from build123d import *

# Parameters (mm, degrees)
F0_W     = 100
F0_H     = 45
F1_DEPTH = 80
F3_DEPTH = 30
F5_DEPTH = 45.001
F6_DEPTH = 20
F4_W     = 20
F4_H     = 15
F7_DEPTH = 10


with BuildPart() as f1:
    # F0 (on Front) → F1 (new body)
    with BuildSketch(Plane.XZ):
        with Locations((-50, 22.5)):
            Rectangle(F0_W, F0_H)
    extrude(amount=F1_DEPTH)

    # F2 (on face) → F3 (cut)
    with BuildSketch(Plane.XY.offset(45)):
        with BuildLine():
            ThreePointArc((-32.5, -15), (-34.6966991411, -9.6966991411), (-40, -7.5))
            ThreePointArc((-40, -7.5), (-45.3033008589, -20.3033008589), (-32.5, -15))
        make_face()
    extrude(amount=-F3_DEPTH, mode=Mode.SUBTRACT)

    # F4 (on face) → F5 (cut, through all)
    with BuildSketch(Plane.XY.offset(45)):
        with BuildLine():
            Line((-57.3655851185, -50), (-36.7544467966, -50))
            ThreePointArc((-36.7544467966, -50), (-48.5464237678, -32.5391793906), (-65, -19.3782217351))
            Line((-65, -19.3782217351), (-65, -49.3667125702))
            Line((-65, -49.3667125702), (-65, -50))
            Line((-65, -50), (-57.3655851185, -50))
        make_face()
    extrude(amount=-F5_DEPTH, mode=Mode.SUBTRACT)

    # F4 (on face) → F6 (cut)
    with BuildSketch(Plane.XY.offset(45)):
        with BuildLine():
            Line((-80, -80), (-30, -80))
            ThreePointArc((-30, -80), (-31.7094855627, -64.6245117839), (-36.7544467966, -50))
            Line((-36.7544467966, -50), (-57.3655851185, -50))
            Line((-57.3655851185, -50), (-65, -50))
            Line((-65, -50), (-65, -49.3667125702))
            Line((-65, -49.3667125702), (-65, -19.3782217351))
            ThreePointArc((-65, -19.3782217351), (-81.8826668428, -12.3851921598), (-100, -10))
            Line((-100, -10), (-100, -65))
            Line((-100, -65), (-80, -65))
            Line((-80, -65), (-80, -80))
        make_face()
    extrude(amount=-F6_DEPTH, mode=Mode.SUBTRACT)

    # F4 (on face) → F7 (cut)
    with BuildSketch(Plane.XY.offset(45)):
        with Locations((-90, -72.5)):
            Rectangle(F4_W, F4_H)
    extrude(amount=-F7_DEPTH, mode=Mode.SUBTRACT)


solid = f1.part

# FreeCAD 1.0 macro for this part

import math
import FreeCAD as App
import Part
import Sketcher

V = App.Vector

doc = App.newDocument("Part")
body = doc.addObject("PartDesign::Body", "Body")

# Sketch on XZ plane
sketch1 = body.newObject("Sketcher::SketchObject", "Sketch")
sketch1.AttachmentSupport = (doc.getObject("XZ_Plane"), [""])
sketch1.MapMode = "FlatFace"
sketch1.addGeometry(Part.LineSegment(V(-100, 45, 0), V(-100, 0, 0)), False)
sketch1.addGeometry(Part.LineSegment(V(-100, 0, 0), V(0, 0, 0)), False)
sketch1.addGeometry(Part.LineSegment(V(0, 0, 0), V(0, 45, 0)), False)
sketch1.addGeometry(Part.LineSegment(V(0, 45, 0), V(-100, 45, 0)), False)
sketch1.addConstraint(Sketcher.Constraint("Coincident", 0, 2, 1, 1))
sketch1.addConstraint(Sketcher.Constraint("Coincident", 1, 2, 2, 1))
sketch1.addConstraint(Sketcher.Constraint("Coincident", 2, 2, 3, 1))
sketch1.addConstraint(Sketcher.Constraint("Coincident", 3, 2, 0, 1))
sketch1.addConstraint(Sketcher.Constraint("Vertical", 0))
sketch1.addConstraint(Sketcher.Constraint("Horizontal", 1))
sketch1.addConstraint(Sketcher.Constraint("Vertical", 2))
sketch1.addConstraint(Sketcher.Constraint("Horizontal", 3))
sketch1.addConstraint(Sketcher.Constraint("Coincident", 1, 2, -1, 1))
sketch1.addConstraint(Sketcher.Constraint("DistanceX", 1, 1, 1, 2, 100.0))
sketch1.addConstraint(Sketcher.Constraint("DistanceY", 0, 2, 0, 1, 45.0))
pad1 = body.newObject("PartDesign::Pad", "Pad")
pad1.Profile = sketch1
pad1.Length = 80

# Sketch on XY plane
sketch2 = body.newObject("Sketcher::SketchObject", "Sketch001")
sketch2.AttachmentSupport = (doc.getObject("XY_Plane"), [""])
sketch2.MapMode = "FlatFace"
sketch2.AttachmentOffset = App.Placement(V(0, 0, 45), App.Rotation())
sketch2.addGeometry(Part.Circle(V(-40, -15, 0), V(0, 0, 1), 7.5), False)
sketch2.addConstraint(Sketcher.Constraint("Diameter", 0, 15.0))
sketch2.addConstraint(Sketcher.Constraint("DistanceX", 0, 3, -1, 1, 40.0))
sketch2.addConstraint(Sketcher.Constraint("DistanceY", 0, 3, -1, 1, 15.0))
pocket1 = body.newObject("PartDesign::Pocket", "Pocket")
pocket1.Profile = sketch2
pocket1.Length = 30

# Sketch on XY plane
sketch3 = body.newObject("Sketcher::SketchObject", "Sketch002")
sketch3.AttachmentSupport = (doc.getObject("XY_Plane"), [""])
sketch3.MapMode = "FlatFace"
sketch3.AttachmentOffset = App.Placement(V(0, 0, 45), App.Rotation())
sketch3.addGeometry(Part.ArcOfCircle(Part.Circle(V(-100, -80, 0), V(0, 0, 1), 70), math.radians(25.376934), math.radians(60)), False)
sketch3.addGeometry(Part.LineSegment(V(-65, -19.378222, 0), V(-65, -50, 0)), False)
sketch3.addGeometry(Part.LineSegment(V(-65, -50, 0), V(-36.754447, -50, 0)), False)
sketch3.addConstraint(Sketcher.Constraint("Coincident", 0, 2, 1, 1))
sketch3.addConstraint(Sketcher.Constraint("Coincident", 1, 2, 2, 1))
sketch3.addConstraint(Sketcher.Constraint("Coincident", 2, 2, 0, 1))
sketch3.addConstraint(Sketcher.Constraint("Vertical", 1))
sketch3.addConstraint(Sketcher.Constraint("Horizontal", 2))
sketch3.addConstraint(Sketcher.Constraint("Radius", 0, 70.0))
sketch3.addConstraint(Sketcher.Constraint("DistanceX", 0, 3, -1, 1, 100.0))
sketch3.addConstraint(Sketcher.Constraint("DistanceY", 0, 3, -1, 1, 80.0))
sketch3.addConstraint(Sketcher.Constraint("DistanceX", 0, 2, -1, 1, 65.0))
sketch3.addConstraint(Sketcher.Constraint("DistanceY", 1, 2, -1, 1, 50.0))
pocket2 = body.newObject("PartDesign::Pocket", "Pocket001")
pocket2.Profile = sketch3
pocket2.Type = "ThroughAll"

# Sketch on XY plane
sketch4 = body.newObject("Sketcher::SketchObject", "Sketch003")
sketch4.AttachmentSupport = (doc.getObject("XY_Plane"), [""])
sketch4.MapMode = "FlatFace"
sketch4.AttachmentOffset = App.Placement(V(0, 0, 45), App.Rotation())
sketch4.addGeometry(Part.LineSegment(V(-80, -80, 0), V(-30, -80, 0)), False)
sketch4.addGeometry(Part.ArcOfCircle(Part.Circle(V(-100, -80, 0), V(0, 0, 1), 70), math.radians(0), math.radians(25.376934)), False)
sketch4.addGeometry(Part.LineSegment(V(-36.754447, -50, 0), V(-65, -50, 0)), False)
sketch4.addGeometry(Part.LineSegment(V(-65, -50, 0), V(-65, -19.378222, 0)), False)
sketch4.addGeometry(Part.ArcOfCircle(Part.Circle(V(-100, -80, 0), V(0, 0, 1), 70), math.radians(60), math.radians(90)), False)
sketch4.addGeometry(Part.LineSegment(V(-100, -10, 0), V(-100, -65, 0)), False)
sketch4.addGeometry(Part.LineSegment(V(-100, -65, 0), V(-80, -65, 0)), False)
sketch4.addGeometry(Part.LineSegment(V(-80, -65, 0), V(-80, -80, 0)), False)
sketch4.addConstraint(Sketcher.Constraint("Coincident", 0, 2, 1, 1))
sketch4.addConstraint(Sketcher.Constraint("Coincident", 1, 2, 2, 1))
sketch4.addConstraint(Sketcher.Constraint("Coincident", 2, 2, 3, 1))
sketch4.addConstraint(Sketcher.Constraint("Coincident", 3, 2, 4, 1))
sketch4.addConstraint(Sketcher.Constraint("Coincident", 4, 2, 5, 1))
sketch4.addConstraint(Sketcher.Constraint("Coincident", 5, 2, 6, 1))
sketch4.addConstraint(Sketcher.Constraint("Coincident", 6, 2, 7, 1))
sketch4.addConstraint(Sketcher.Constraint("Coincident", 7, 2, 0, 1))
sketch4.addConstraint(Sketcher.Constraint("Horizontal", 0))
sketch4.addConstraint(Sketcher.Constraint("Horizontal", 2))
sketch4.addConstraint(Sketcher.Constraint("Vertical", 3))
sketch4.addConstraint(Sketcher.Constraint("Vertical", 5))
sketch4.addConstraint(Sketcher.Constraint("Horizontal", 6))
sketch4.addConstraint(Sketcher.Constraint("Vertical", 7))
sketch4.addConstraint(Sketcher.Constraint("Coincident", 4, 3, 1, 3))
sketch4.addConstraint(Sketcher.Constraint("Equal", 1, 4))
sketch4.addConstraint(Sketcher.Constraint("Horizontal", 4, 3, 0, 2))
sketch4.addConstraint(Sketcher.Constraint("Vertical", 1, 3, 4, 2))
sketch4.addConstraint(Sketcher.Constraint("Radius", 1, 70.0))
sketch4.addConstraint(Sketcher.Constraint("DistanceX", 0, 1, 0, 2, 50.0))
sketch4.addConstraint(Sketcher.Constraint("DistanceY", 5, 2, 5, 1, 55.0))
sketch4.addConstraint(Sketcher.Constraint("DistanceX", 1, 3, -1, 1, 100.0))
sketch4.addConstraint(Sketcher.Constraint("DistanceY", 1, 3, -1, 1, 80.0))
sketch4.addConstraint(Sketcher.Constraint("DistanceY", 1, 2, -1, 1, 50.0))
sketch4.addConstraint(Sketcher.Constraint("DistanceX", 2, 2, -1, 1, 65.0))
pocket3 = body.newObject("PartDesign::Pocket", "Pocket002")
pocket3.Profile = sketch4
pocket3.Length = 20

# Sketch on XY plane
sketch5 = body.newObject("Sketcher::SketchObject", "Sketch004")
sketch5.AttachmentSupport = (doc.getObject("XY_Plane"), [""])
sketch5.MapMode = "FlatFace"
sketch5.AttachmentOffset = App.Placement(V(0, 0, 45), App.Rotation())
sketch5.addGeometry(Part.LineSegment(V(-100, -65, 0), V(-100, -80, 0)), False)
sketch5.addGeometry(Part.LineSegment(V(-100, -80, 0), V(-80, -80, 0)), False)
sketch5.addGeometry(Part.LineSegment(V(-80, -80, 0), V(-80, -65, 0)), False)
sketch5.addGeometry(Part.LineSegment(V(-80, -65, 0), V(-100, -65, 0)), False)
sketch5.addConstraint(Sketcher.Constraint("Coincident", 0, 2, 1, 1))
sketch5.addConstraint(Sketcher.Constraint("Coincident", 1, 2, 2, 1))
sketch5.addConstraint(Sketcher.Constraint("Coincident", 2, 2, 3, 1))
sketch5.addConstraint(Sketcher.Constraint("Coincident", 3, 2, 0, 1))
sketch5.addConstraint(Sketcher.Constraint("Vertical", 0))
sketch5.addConstraint(Sketcher.Constraint("Horizontal", 1))
sketch5.addConstraint(Sketcher.Constraint("Vertical", 2))
sketch5.addConstraint(Sketcher.Constraint("Horizontal", 3))
sketch5.addConstraint(Sketcher.Constraint("DistanceX", 1, 1, 1, 2, 20.0))
sketch5.addConstraint(Sketcher.Constraint("DistanceY", 0, 2, 0, 1, 15.0))
sketch5.addConstraint(Sketcher.Constraint("DistanceX", 0, 2, -1, 1, 100.0))
sketch5.addConstraint(Sketcher.Constraint("DistanceY", 0, 2, -1, 1, 80.0))
pocket4 = body.newObject("PartDesign::Pocket", "Pocket003")
pocket4.Profile = sketch5
pocket4.Length = 10

doc.recompute()
